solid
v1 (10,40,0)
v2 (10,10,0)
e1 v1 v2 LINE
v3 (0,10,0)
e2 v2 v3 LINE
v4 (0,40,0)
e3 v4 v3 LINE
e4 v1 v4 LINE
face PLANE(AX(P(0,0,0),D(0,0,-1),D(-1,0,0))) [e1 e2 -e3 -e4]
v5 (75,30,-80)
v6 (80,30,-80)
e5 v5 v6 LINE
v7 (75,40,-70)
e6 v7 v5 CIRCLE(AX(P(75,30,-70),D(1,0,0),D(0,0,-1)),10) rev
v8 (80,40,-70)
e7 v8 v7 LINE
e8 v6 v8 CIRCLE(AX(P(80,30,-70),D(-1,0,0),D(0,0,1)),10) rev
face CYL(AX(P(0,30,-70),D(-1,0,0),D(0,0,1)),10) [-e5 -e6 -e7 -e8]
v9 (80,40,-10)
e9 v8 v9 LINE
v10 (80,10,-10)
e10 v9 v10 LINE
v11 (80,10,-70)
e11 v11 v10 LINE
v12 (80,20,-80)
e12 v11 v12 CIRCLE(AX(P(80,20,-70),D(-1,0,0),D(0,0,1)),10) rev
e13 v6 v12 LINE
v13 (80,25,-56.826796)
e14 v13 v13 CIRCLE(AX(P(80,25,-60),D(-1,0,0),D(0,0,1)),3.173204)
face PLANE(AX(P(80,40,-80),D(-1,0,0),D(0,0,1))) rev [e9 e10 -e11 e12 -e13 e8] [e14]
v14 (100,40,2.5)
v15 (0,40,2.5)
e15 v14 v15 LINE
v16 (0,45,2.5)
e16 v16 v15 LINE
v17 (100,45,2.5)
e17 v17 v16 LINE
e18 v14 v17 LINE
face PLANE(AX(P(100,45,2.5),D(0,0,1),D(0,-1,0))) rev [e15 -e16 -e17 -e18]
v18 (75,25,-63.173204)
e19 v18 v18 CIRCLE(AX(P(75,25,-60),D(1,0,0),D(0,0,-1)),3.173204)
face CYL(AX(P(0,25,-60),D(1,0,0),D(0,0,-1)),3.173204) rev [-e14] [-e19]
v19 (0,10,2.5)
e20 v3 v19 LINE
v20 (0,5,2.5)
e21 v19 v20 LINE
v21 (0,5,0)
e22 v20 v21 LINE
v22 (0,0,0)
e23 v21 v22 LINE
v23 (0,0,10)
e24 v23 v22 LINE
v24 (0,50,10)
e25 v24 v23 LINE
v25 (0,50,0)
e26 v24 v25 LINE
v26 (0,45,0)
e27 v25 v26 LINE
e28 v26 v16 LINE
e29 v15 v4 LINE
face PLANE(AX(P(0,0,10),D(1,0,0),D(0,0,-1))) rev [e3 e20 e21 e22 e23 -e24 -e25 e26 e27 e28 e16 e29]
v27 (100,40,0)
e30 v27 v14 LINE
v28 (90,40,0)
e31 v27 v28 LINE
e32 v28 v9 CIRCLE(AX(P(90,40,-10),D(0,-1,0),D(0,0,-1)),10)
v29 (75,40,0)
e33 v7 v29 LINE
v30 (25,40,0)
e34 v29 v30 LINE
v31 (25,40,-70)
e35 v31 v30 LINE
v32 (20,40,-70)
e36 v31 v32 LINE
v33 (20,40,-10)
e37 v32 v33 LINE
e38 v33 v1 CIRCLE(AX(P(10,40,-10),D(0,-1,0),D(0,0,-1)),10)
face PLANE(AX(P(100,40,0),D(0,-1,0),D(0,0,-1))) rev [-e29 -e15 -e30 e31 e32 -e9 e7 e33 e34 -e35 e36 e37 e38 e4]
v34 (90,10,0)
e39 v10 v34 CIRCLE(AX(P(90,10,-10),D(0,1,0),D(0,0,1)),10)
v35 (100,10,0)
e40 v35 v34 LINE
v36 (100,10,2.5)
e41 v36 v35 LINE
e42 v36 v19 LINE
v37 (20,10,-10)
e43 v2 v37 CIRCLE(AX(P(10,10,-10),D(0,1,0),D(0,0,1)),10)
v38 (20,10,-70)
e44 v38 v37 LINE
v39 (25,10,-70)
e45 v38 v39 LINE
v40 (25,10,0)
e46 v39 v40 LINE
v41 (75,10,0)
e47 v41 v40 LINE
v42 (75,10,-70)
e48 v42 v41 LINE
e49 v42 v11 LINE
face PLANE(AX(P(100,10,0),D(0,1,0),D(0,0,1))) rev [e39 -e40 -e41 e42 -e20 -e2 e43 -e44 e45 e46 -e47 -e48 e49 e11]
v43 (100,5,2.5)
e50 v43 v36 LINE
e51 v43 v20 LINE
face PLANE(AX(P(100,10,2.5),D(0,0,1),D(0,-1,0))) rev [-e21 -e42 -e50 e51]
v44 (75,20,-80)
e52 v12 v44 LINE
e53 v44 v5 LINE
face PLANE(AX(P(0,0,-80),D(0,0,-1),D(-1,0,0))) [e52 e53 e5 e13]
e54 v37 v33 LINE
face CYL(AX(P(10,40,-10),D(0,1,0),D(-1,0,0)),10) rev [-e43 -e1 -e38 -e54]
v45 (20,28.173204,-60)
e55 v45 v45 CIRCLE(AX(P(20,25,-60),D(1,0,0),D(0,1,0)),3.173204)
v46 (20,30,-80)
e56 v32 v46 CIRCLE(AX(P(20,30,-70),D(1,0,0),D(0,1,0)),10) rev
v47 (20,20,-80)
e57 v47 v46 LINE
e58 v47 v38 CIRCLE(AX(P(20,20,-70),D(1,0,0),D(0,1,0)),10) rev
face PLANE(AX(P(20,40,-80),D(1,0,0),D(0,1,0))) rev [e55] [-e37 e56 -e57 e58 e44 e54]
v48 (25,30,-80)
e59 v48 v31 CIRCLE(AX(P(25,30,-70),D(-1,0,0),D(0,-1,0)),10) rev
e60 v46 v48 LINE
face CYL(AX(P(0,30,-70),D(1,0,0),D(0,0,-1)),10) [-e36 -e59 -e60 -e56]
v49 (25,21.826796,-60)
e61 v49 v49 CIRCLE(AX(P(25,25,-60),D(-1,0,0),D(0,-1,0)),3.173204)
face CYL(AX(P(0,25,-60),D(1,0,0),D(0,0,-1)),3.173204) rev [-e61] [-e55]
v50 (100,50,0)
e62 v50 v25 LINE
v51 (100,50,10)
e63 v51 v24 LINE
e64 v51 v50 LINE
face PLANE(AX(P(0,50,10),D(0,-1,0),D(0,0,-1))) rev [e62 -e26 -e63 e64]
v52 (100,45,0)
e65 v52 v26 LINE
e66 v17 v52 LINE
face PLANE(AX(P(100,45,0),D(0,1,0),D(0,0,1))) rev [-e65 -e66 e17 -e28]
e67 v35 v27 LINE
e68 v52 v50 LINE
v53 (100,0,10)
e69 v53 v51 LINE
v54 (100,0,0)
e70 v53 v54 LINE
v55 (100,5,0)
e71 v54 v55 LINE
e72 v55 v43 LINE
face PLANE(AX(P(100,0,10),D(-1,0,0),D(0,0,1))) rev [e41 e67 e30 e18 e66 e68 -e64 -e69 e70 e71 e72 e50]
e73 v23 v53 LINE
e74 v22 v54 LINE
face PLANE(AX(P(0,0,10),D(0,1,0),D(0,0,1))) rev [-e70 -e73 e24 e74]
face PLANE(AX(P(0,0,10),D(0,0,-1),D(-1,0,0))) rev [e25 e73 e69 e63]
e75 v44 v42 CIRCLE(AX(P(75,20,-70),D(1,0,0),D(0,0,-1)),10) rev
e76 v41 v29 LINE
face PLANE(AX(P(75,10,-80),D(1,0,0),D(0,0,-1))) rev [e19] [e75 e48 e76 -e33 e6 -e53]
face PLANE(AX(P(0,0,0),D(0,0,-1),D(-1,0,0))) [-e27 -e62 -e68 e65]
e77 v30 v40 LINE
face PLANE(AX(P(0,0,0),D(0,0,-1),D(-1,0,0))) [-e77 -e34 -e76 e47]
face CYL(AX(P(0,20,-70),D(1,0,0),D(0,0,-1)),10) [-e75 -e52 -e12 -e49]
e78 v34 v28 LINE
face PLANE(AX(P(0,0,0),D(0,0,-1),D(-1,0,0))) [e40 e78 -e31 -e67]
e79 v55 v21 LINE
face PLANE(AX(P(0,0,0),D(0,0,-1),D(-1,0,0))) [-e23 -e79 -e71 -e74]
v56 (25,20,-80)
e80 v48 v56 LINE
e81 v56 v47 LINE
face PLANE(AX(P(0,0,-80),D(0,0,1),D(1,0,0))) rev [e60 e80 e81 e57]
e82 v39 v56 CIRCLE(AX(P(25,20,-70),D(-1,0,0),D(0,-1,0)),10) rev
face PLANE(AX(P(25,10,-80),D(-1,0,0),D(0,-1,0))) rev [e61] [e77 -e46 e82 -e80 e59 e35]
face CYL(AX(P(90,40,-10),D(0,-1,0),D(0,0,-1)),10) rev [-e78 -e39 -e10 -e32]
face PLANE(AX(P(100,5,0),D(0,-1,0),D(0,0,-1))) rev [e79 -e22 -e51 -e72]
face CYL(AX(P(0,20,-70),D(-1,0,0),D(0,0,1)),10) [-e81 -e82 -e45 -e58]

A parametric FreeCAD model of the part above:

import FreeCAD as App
import Part
import Sketcher
Q = App.Units.Quantity


def edges_at(feature, points):
    """Names of the edges that pass closest to the given points."""
    edges = feature.Shape.Edges
    near = lambda p: min(range(len(edges)), key=lambda i: edges[i].distToShape(Part.Vertex(*p))[0])
    return sorted({f"Edge{near(p) + 1}" for p in points})


def add_polygon(sketch, points):
    """Adds a closed chain of lines whose ends are joined by coincident constraints."""
    first, n = sketch.GeometryCount, len(points)
    for a, b in zip(points, points[1:] + points[:1]):
        sketch.addGeometry(Part.LineSegment(App.Vector(*a, 0), App.Vector(*b, 0)), False)
    for i in range(n):
        sketch.addConstraint(Sketcher.Constraint("Coincident", first + i, 2, first + (i + 1) % n, 1))

doc = App.newDocument("Part")
body = doc.addObject("PartDesign::Body", "Body")

# Sketch on XY plane
sketch1 = doc.addObject("Sketcher::SketchObject", "Sketch")
body.addObject(sketch1)
sketch1.AttachmentSupport = (doc.XY_Plane, [""])
sketch1.MapMode = "FlatFace"
add_polygon(sketch1, [(0, 50), (0, 0), (100, 0), (100, 50)])  # lines 0-3
sketch1.addConstraint([
    Sketcher.Constraint("Vertical", 0),
    Sketcher.Constraint("Horizontal", 1),
    Sketcher.Constraint("Vertical", 2),
    Sketcher.Constraint("Horizontal", 3),
    Sketcher.Constraint("Coincident", 0, 2, -1, 1),
    Sketcher.Constraint("DistanceX", 1, 1, 1, 2, Q("100 mm")),
    Sketcher.Constraint("DistanceY", 0, 2, 0, 1, Q("50 mm")),
])
pad1 = doc.addObject("PartDesign::Pad", "Pad")
body.addObject(pad1)
pad1.Profile = sketch1
pad1.Length = 10

# Sketch on YZ plane
sketch2 = doc.addObject("Sketcher::SketchObject", "Sketch001")
body.addObject(sketch2)
sketch2.AttachmentSupport = (doc.YZ_Plane, [""])
sketch2.MapMode = "FlatFace"
add_polygon(sketch2, [(45, 0), (40, 0), (40, 2.5), (45, 2.5)])  # lines 0-3
add_polygon(sketch2, [(10, 0), (5, 0), (5, 2.5), (10, 2.5)])  # lines 4-7
sketch2.addConstraint([
    Sketcher.Constraint("Horizontal", 0),
    Sketcher.Constraint("Vertical", 1),
    Sketcher.Constraint("Horizontal", 2),
    Sketcher.Constraint("Vertical", 3),
    Sketcher.Constraint("Horizontal", 4),
    Sketcher.Constraint("Vertical", 5),
    Sketcher.Constraint("Horizontal", 6),
    Sketcher.Constraint("Vertical", 7),
    Sketcher.Constraint("PointOnObject", 0, 2, -1),
    Sketcher.Constraint("PointOnObject", 4, 2, -1),
    Sketcher.Constraint("Horizontal", 2, 2, 5, 2),
    Sketcher.Constraint("Equal", 2, 4),
    Sketcher.Constraint("DistanceX", 0, 2, 0, 1, Q("5 mm")),
    Sketcher.Constraint("DistanceY", 1, 1, 1, 2, Q("2.5 mm")),
    Sketcher.Constraint("DistanceX", -1, 1, 0, 2, Q("40 mm")),
    Sketcher.Constraint("DistanceX", -1, 1, 4, 2, Q("5 mm")),
])
pocket1 = doc.addObject("PartDesign::Pocket", "Pocket")
body.addObject(pocket1)
pocket1.Profile = sketch2
pocket1.Type = "ThroughAll"
pocket1.Midplane = True

# Sketch on XY plane
sketch3 = doc.addObject("Sketcher::SketchObject", "Sketch002")
body.addObject(sketch3)
sketch3.AttachmentSupport = (doc.XY_Plane, [""])
sketch3.MapMode = "FlatFace"
add_polygon(sketch3, [(80, 40), (80, 10), (75, 10), (75, 40)])  # lines 0-3
add_polygon(sketch3, [(25, 40), (25, 10), (20, 10), (20, 40)])  # lines 4-7
sketch3.addConstraint([
    Sketcher.Constraint("Vertical", 0),
    Sketcher.Constraint("Horizontal", 1),
    Sketcher.Constraint("Vertical", 2),
    Sketcher.Constraint("Horizontal", 3),
    Sketcher.Constraint("Vertical", 4),
    Sketcher.Constraint("Horizontal", 5),
    Sketcher.Constraint("Vertical", 6),
    Sketcher.Constraint("Horizontal", 7),
    Sketcher.Constraint("Horizontal", 1, 2, 4, 2),
    Sketcher.Constraint("Horizontal", 3, 2, 6, 2),
    Sketcher.Constraint("Equal", 3, 5),
    Sketcher.Constraint("DistanceX", 1, 2, 1, 1, Q("5 mm")),
    Sketcher.Constraint("DistanceY", 0, 2, 0, 1, Q("30 mm")),
    Sketcher.Constraint("DistanceX", -1, 1, 0, 2, Q("80 mm")),
    Sketcher.Constraint("DistanceY", -1, 1, 0, 2, Q("10 mm")),
    Sketcher.Constraint("DistanceX", -1, 1, 4, 2, Q("25 mm")),
])
pad2 = doc.addObject("PartDesign::Pad", "Pad001")
body.addObject(pad2)
pad2.Profile = sketch3
pad2.Length = 80
pad2.Reversed = True

# Sketch on YZ plane
sketch4 = doc.addObject("Sketcher::SketchObject", "Sketch003")
body.addObject(sketch4)
sketch4.AttachmentSupport = (doc.YZ_Plane, [""])
sketch4.MapMode = "FlatFace"
sketch4.AttachmentOffset = App.Placement(App.Vector(0, 0, 80), App.Rotation())
sketch4.addGeometry(Part.Circle(App.Vector(25, -60, 0), App.Vector(0, 0, 1), 3.2), False)
sketch4.addConstraint([
    Sketcher.Constraint("DistanceX", -1, 1, 0, 3, Q("25 mm")),
    Sketcher.Constraint("DistanceY", 0, 3, -1, 1, Q("60 mm")),
    Sketcher.Constraint("Diameter", 0, Q("6.346409 mm")),
])
pocket2 = doc.addObject("PartDesign::Pocket", "Pocket001")
body.addObject(pocket2)
pocket2.Profile = sketch4
pocket2.Type = "ThroughAll"
pocket2.Midplane = True
doc.recompute()

fillet = doc.addObject("PartDesign::Fillet", "Fillet")
body.addObject(fillet)
fillet.Base = (pocket2, edges_at(pocket2, [
    (77.5, 40, -80),
    (77.5, 10, -80),
    (22.5, 10, -80),
    (22.5, 40, -80),
]))
fillet.Radius = 10
doc.recompute()

fillet2 = doc.addObject("PartDesign::Fillet", "Fillet001")
body.addObject(fillet2)
fillet2.Base = (fillet, edges_at(fillet, [(80, 25, 0), (20, 25, 0)]))
fillet2.Radius = 10

doc.recompute()
